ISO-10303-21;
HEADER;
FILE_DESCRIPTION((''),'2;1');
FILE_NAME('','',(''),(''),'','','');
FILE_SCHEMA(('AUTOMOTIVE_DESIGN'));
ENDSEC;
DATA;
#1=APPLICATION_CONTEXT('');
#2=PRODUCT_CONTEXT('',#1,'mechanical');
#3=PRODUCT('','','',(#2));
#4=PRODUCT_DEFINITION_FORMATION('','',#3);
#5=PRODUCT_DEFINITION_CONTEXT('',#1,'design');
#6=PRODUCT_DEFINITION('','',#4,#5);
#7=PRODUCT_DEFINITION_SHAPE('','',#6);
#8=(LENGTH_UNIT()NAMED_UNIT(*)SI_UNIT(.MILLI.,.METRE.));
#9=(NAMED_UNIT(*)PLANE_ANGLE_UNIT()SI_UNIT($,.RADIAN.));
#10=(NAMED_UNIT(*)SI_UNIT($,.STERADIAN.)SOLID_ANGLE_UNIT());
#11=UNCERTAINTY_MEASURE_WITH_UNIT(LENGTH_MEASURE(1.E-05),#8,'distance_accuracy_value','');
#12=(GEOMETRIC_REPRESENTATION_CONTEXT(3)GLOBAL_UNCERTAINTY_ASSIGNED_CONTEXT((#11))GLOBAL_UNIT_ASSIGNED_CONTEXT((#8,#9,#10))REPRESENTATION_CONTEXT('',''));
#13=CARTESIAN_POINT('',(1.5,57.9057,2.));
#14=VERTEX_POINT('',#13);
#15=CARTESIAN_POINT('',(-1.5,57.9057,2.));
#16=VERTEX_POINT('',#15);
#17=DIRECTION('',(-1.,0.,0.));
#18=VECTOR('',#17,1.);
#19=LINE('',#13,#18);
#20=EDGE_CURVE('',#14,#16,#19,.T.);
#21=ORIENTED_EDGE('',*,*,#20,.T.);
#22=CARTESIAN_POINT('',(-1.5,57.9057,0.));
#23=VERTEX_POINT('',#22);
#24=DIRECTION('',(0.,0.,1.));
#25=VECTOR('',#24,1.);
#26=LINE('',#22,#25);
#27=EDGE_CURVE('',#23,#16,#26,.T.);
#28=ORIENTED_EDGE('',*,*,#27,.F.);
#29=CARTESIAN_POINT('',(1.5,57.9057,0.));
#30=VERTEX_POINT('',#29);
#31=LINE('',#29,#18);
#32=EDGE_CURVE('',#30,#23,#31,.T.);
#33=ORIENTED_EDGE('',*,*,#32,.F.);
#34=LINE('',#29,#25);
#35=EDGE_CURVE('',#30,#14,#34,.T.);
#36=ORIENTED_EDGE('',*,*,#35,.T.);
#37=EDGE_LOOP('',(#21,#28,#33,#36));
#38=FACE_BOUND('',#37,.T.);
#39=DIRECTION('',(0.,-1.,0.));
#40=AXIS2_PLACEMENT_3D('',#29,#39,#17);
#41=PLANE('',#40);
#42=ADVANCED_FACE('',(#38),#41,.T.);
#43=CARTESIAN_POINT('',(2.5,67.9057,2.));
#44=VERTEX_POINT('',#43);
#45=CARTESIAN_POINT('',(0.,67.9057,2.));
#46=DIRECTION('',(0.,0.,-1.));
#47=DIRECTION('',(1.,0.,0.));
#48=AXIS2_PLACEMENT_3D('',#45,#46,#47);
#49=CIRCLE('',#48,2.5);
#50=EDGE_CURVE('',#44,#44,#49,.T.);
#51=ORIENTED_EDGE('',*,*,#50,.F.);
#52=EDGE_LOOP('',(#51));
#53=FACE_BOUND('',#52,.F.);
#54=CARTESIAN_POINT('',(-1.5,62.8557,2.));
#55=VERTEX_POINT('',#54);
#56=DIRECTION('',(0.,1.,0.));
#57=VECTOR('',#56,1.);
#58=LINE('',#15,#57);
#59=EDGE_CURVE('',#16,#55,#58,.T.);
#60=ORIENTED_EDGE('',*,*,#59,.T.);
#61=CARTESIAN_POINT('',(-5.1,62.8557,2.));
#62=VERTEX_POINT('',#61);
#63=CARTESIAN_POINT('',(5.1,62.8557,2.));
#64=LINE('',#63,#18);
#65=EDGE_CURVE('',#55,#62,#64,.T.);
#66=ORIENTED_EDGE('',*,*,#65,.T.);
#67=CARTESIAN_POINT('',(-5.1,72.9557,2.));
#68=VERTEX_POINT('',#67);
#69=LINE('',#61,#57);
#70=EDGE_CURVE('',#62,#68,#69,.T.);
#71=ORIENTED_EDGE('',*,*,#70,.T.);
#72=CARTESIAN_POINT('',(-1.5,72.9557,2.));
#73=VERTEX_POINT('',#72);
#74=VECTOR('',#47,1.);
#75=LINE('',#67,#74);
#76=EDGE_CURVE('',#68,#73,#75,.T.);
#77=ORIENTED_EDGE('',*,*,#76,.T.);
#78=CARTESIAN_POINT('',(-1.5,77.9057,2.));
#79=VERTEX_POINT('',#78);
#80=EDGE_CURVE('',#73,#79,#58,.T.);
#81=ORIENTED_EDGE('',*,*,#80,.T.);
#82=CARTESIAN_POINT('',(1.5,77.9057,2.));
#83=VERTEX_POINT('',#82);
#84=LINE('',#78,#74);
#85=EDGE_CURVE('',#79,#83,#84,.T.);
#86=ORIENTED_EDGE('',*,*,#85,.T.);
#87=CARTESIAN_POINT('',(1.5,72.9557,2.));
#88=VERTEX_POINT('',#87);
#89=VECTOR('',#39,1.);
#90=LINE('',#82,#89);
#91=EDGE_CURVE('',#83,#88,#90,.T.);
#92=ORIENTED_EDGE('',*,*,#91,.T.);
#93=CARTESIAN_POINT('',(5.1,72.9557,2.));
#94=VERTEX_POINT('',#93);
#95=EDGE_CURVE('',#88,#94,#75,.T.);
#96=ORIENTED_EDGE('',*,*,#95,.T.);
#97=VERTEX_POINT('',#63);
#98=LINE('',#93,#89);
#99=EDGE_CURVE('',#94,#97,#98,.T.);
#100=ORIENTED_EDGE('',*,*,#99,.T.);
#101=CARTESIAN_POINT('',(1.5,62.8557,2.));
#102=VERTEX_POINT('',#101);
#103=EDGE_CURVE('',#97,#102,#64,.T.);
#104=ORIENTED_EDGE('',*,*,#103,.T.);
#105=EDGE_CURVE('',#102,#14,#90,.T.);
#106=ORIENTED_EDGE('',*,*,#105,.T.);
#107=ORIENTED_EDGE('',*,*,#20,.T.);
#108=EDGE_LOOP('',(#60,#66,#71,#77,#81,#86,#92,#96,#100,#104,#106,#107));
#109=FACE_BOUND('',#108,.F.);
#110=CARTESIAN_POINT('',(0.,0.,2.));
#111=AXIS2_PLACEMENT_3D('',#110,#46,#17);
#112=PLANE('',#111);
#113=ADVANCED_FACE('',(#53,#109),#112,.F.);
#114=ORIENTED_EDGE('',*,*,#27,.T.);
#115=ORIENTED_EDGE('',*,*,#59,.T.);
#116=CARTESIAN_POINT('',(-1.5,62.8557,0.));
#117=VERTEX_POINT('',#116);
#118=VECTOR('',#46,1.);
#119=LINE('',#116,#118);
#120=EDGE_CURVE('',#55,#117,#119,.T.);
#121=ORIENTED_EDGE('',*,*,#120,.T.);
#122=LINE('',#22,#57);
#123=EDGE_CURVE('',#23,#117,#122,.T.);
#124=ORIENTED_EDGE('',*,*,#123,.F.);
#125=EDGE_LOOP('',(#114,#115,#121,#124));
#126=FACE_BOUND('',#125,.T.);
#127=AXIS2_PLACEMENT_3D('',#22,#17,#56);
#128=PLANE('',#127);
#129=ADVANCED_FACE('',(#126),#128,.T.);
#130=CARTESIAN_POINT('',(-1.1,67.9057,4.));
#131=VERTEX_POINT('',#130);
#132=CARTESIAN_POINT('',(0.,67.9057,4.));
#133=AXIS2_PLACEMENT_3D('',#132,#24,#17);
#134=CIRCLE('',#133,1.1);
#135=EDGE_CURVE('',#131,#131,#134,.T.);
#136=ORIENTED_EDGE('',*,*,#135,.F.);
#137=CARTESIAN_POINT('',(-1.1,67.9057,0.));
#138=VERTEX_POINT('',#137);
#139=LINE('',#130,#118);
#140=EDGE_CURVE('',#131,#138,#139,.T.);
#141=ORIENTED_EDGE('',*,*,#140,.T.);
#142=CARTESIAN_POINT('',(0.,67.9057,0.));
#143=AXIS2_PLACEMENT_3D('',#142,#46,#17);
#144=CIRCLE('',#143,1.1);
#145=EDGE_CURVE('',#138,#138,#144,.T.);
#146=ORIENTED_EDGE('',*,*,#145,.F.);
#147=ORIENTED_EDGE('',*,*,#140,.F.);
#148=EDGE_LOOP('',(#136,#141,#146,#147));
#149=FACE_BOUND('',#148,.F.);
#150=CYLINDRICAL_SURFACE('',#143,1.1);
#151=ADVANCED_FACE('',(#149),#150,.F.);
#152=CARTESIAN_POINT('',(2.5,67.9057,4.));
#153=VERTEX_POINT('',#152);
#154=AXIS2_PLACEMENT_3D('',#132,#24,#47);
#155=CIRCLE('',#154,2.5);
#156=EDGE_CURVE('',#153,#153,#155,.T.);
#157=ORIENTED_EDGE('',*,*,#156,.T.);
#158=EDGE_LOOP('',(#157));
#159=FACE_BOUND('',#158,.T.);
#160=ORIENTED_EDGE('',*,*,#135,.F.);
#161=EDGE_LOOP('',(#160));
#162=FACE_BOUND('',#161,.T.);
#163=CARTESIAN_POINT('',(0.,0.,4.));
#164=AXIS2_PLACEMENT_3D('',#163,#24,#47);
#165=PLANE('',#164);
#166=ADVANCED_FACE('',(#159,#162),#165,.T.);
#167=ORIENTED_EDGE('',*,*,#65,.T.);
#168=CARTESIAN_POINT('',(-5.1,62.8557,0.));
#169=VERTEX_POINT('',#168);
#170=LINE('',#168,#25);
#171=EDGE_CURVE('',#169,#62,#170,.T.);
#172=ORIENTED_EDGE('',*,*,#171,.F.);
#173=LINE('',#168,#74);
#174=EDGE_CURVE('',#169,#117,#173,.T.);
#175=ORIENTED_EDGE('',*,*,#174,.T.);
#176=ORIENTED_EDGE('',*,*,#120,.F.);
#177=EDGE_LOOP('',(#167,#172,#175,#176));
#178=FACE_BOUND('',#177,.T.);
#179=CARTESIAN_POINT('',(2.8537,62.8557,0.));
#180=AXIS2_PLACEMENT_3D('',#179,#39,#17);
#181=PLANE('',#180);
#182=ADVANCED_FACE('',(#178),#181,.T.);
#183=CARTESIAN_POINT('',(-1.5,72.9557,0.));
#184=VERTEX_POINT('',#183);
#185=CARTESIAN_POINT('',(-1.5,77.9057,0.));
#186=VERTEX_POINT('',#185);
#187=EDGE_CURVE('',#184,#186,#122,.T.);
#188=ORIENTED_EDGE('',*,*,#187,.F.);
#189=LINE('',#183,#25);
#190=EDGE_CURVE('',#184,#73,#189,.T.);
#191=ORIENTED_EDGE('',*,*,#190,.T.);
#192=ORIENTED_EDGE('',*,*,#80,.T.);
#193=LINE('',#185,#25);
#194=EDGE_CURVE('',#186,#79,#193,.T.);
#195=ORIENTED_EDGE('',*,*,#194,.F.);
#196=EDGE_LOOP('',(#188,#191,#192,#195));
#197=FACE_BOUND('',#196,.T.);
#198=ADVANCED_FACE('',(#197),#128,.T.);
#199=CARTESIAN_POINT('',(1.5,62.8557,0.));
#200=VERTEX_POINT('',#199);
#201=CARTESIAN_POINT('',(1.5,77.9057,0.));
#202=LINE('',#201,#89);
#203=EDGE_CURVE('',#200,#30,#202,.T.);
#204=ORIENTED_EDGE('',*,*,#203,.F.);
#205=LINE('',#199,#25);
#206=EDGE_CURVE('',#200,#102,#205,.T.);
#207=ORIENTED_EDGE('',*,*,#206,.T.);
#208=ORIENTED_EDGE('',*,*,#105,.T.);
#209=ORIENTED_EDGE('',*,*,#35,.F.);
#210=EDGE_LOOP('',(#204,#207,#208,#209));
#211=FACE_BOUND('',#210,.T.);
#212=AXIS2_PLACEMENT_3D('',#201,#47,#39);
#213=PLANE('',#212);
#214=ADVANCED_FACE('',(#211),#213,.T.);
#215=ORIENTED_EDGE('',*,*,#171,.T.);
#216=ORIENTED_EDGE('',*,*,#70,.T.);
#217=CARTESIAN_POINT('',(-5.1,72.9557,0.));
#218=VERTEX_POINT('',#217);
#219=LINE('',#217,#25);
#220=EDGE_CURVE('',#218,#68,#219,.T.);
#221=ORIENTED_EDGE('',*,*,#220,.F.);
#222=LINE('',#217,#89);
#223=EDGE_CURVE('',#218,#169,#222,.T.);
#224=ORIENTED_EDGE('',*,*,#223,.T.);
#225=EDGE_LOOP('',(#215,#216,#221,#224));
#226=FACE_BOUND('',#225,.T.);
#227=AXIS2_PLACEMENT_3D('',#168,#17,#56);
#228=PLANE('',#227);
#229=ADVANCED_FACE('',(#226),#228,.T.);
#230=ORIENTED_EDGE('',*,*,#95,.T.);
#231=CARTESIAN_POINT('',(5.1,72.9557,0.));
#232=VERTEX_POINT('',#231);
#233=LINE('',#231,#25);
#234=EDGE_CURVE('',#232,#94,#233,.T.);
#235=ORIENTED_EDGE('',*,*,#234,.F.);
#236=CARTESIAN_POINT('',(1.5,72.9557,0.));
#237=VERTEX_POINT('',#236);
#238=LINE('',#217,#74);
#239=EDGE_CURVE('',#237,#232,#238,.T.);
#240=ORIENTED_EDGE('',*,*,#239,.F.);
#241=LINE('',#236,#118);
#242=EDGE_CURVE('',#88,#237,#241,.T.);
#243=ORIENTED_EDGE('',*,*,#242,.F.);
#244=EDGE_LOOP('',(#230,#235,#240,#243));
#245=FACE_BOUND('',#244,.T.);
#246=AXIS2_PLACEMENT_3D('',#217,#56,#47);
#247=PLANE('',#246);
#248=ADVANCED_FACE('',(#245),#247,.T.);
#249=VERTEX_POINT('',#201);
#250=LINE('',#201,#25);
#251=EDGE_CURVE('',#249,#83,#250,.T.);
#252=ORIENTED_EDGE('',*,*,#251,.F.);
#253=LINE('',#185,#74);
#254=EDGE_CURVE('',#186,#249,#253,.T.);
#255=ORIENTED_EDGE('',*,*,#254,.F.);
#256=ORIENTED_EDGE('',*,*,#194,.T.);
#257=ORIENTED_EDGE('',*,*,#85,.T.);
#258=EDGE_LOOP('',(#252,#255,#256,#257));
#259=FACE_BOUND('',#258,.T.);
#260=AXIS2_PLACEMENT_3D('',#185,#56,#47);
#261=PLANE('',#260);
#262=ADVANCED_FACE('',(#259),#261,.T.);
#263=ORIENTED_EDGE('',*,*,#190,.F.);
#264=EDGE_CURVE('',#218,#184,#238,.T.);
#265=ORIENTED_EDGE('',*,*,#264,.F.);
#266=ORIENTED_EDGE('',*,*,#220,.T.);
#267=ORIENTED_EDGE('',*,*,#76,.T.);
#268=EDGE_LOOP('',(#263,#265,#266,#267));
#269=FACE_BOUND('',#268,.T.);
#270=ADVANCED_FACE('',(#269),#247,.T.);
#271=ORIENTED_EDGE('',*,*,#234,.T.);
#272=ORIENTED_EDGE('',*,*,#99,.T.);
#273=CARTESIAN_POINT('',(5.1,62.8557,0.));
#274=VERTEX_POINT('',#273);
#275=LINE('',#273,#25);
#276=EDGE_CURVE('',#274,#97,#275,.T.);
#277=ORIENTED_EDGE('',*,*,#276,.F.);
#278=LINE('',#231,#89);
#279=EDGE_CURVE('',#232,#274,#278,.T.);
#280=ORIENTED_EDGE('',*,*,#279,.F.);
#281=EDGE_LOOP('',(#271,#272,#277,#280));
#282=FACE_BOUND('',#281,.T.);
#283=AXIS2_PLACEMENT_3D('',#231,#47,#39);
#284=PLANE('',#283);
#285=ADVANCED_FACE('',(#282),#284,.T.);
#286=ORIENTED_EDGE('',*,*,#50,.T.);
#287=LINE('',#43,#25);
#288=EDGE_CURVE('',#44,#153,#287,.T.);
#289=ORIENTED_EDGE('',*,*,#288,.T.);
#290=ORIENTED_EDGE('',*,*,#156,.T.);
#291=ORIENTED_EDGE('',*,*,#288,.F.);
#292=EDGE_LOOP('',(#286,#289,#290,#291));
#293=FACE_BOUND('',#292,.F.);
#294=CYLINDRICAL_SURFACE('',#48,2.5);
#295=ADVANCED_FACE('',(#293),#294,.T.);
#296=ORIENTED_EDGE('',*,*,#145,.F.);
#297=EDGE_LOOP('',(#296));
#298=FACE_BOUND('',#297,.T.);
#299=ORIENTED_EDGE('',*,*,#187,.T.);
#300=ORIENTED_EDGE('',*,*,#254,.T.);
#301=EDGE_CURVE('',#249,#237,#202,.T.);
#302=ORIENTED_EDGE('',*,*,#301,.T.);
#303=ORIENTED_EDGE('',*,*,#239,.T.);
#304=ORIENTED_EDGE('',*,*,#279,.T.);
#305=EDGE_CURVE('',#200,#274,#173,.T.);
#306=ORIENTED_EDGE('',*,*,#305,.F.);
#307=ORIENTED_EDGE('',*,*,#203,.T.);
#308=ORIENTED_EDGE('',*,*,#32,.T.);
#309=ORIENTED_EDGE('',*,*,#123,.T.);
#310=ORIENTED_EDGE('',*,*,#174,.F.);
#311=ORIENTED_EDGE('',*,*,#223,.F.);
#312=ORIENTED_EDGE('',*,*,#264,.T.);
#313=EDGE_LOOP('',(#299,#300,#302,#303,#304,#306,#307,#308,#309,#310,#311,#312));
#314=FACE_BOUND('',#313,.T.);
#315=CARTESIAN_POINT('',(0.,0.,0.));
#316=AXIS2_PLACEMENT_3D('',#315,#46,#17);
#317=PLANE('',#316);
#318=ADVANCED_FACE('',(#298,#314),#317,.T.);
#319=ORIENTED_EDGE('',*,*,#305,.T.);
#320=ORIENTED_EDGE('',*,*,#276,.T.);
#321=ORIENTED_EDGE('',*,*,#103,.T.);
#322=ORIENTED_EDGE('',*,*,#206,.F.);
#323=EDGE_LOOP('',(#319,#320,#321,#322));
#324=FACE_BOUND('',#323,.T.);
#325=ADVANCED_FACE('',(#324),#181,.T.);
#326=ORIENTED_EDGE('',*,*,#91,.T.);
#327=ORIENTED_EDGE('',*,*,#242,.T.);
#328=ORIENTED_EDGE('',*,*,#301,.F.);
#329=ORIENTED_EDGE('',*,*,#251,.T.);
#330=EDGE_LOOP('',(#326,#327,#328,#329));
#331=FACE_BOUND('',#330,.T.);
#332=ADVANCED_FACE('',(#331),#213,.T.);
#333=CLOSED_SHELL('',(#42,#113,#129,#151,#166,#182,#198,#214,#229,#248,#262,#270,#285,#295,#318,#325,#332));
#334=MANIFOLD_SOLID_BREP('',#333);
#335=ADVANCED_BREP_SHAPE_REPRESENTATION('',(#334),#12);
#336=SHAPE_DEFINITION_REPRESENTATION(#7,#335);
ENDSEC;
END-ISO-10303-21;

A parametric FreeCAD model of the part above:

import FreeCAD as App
import Part
import Sketcher
Q = App.Units.Quantity


def add_polygon(sketch, points):
    """Adds a closed chain of lines whose ends are joined by coincident constraints."""
    first, n = sketch.GeometryCount, len(points)
    for a, b in zip(points, points[1:] + points[:1]):
        sketch.addGeometry(Part.LineSegment(App.Vector(*a, 0), App.Vector(*b, 0)), False)
    for i in range(n):
        sketch.addConstraint(Sketcher.Constraint("Coincident", first + i, 2, first + (i + 1) % n, 1))

doc = App.newDocument("Part")
body = doc.addObject("PartDesign::Body", "Body")

# Sketch on XY plane
sketch1 = body.newObject("Sketcher::SketchObject", "Sketch")
sketch1.AttachmentSupport = (doc.getObject("XY_Plane"), [""])
sketch1.MapMode = "FlatFace"
add_polygon(sketch1, [(-5, 63), (5, 63), (5, 73), (-5, 73)])  # lines 0-3
sketch1.addConstraint(Sketcher.Constraint("Horizontal", 0))
sketch1.addConstraint(Sketcher.Constraint("Vertical", 1))
sketch1.addConstraint(Sketcher.Constraint("Horizontal", 2))
sketch1.addConstraint(Sketcher.Constraint("Vertical", 3))
sketch1.addConstraint(Sketcher.Constraint("DistanceX", 0, 1, 0, 2, Q("10.2 mm")))
sketch1.addConstraint(Sketcher.Constraint("DistanceY", 1, 1, 1, 2, Q("10.1 mm")))
sketch1.addConstraint(Sketcher.Constraint("DistanceX", -1, 1, 0, 2, Q("5.1 mm")))
sketch1.addConstraint(Sketcher.Constraint("DistanceY", -1, 1, 0, 2, Q("62.8557 mm")))
pad1 = body.newObject("PartDesign::Pad", "Pad")
pad1.Profile = sketch1
pad1.Length = 2

# Sketch on XY plane
sketch2 = body.newObject("Sketcher::SketchObject", "Sketch001")
sketch2.AttachmentSupport = (doc.getObject("XY_Plane"), [""])
sketch2.MapMode = "FlatFace"
sketch2.AttachmentOffset = App.Placement(App.Vector(0, 0, 2), App.Rotation())
sketch2.addGeometry(Part.Circle(App.Vector(0, 67.9, 0), App.Vector(0, 0, 1), 2.5), False)
sketch2.addGeometry(Part.Circle(App.Vector(0, 67.9, 0), App.Vector(0, 0, 1), 1.1), False)
sketch2.addConstraint(Sketcher.Constraint("Coincident", 1, 3, 0, 3))
sketch2.addConstraint(Sketcher.Constraint("PointOnObject", 0, 3, -2))
sketch2.addConstraint(Sketcher.Constraint("Diameter", 0, Q("5 mm")))
sketch2.addConstraint(Sketcher.Constraint("Diameter", 1, Q("2.2 mm")))
sketch2.addConstraint(Sketcher.Constraint("DistanceY", -1, 1, 0, 3, Q("67.9057 mm")))
pad2 = body.newObject("PartDesign::Pad", "Pad001")
pad2.Profile = sketch2
pad2.Length = 2

# Sketch on XY plane
sketch3 = body.newObject("Sketcher::SketchObject", "Sketch002")
sketch3.AttachmentSupport = (doc.getObject("XY_Plane"), [""])
sketch3.MapMode = "FlatFace"
sketch3.AttachmentOffset = App.Placement(App.Vector(0, 0, 2), App.Rotation())
sketch3.addGeometry(Part.Circle(App.Vector(0, 67.9, 0), App.Vector(0, 0, 1), 1.1), False)
sketch3.addConstraint(Sketcher.Constraint("PointOnObject", 0, 3, -2))
sketch3.addConstraint(Sketcher.Constraint("Diameter", 0, Q("2.2 mm")))
sketch3.addConstraint(Sketcher.Constraint("DistanceY", -1, 1, 0, 3, Q("67.9057 mm")))
pocket1 = body.newObject("PartDesign::Pocket", "Pocket")
pocket1.Profile = sketch3
pocket1.Length = 2

# Sketch on XY plane
sketch4 = body.newObject("Sketcher::SketchObject", "Sketch003")
sketch4.AttachmentSupport = (doc.getObject("XY_Plane"), [""])
sketch4.MapMode = "FlatFace"
add_polygon(sketch4, [(-1.5, 57.9), (-1.5, 77.9), (1.5, 77.9), (1.5, 57.9)])  # lines 0-3
sketch4.addConstraint(Sketcher.Constraint("Vertical", 0))
sketch4.addConstraint(Sketcher.Constraint("Horizontal", 1))
sketch4.addConstraint(Sketcher.Constraint("Vertical", 2))
sketch4.addConstraint(Sketcher.Constraint("Horizontal", 3))
sketch4.addConstraint(Sketcher.Constraint("DistanceX", 1, 1, 1, 2, Q("3 mm")))
sketch4.addConstraint(Sketcher.Constraint("DistanceY", 0, 1, 0, 2, Q("20 mm")))
sketch4.addConstraint(Sketcher.Constraint("DistanceX", 0, 2, -1, 1, Q("1.5 mm")))
sketch4.addConstraint(Sketcher.Constraint("DistanceY", -1, 1, 0, 2, Q("77.9057 mm")))
pad3 = body.newObject("PartDesign::Pad", "Pad002")
pad3.Profile = sketch4
pad3.Length = 2

# Sketch on XY plane
sketch5 = body.newObject("Sketcher::SketchObject", "Sketch004")
sketch5.AttachmentSupport = (doc.getObject("XY_Plane"), [""])
sketch5.MapMode = "FlatFace"
sketch5.addGeometry(Part.Circle(App.Vector(0, 67.9, 0), App.Vector(0, 0, 1), 1.1), False)
sketch5.addConstraint(Sketcher.Constraint("PointOnObject", 0, 3, -2))
sketch5.addConstraint(Sketcher.Constraint("Diameter", 0, Q("2.2 mm")))
sketch5.addConstraint(Sketcher.Constraint("DistanceY", -1, 1, 0, 3, Q("67.9057 mm")))
pocket2 = body.newObject("PartDesign::Pocket", "Pocket001")
pocket2.Profile = sketch5
pocket2.Length = 10
pocket2.Reversed = True

doc.recompute()
